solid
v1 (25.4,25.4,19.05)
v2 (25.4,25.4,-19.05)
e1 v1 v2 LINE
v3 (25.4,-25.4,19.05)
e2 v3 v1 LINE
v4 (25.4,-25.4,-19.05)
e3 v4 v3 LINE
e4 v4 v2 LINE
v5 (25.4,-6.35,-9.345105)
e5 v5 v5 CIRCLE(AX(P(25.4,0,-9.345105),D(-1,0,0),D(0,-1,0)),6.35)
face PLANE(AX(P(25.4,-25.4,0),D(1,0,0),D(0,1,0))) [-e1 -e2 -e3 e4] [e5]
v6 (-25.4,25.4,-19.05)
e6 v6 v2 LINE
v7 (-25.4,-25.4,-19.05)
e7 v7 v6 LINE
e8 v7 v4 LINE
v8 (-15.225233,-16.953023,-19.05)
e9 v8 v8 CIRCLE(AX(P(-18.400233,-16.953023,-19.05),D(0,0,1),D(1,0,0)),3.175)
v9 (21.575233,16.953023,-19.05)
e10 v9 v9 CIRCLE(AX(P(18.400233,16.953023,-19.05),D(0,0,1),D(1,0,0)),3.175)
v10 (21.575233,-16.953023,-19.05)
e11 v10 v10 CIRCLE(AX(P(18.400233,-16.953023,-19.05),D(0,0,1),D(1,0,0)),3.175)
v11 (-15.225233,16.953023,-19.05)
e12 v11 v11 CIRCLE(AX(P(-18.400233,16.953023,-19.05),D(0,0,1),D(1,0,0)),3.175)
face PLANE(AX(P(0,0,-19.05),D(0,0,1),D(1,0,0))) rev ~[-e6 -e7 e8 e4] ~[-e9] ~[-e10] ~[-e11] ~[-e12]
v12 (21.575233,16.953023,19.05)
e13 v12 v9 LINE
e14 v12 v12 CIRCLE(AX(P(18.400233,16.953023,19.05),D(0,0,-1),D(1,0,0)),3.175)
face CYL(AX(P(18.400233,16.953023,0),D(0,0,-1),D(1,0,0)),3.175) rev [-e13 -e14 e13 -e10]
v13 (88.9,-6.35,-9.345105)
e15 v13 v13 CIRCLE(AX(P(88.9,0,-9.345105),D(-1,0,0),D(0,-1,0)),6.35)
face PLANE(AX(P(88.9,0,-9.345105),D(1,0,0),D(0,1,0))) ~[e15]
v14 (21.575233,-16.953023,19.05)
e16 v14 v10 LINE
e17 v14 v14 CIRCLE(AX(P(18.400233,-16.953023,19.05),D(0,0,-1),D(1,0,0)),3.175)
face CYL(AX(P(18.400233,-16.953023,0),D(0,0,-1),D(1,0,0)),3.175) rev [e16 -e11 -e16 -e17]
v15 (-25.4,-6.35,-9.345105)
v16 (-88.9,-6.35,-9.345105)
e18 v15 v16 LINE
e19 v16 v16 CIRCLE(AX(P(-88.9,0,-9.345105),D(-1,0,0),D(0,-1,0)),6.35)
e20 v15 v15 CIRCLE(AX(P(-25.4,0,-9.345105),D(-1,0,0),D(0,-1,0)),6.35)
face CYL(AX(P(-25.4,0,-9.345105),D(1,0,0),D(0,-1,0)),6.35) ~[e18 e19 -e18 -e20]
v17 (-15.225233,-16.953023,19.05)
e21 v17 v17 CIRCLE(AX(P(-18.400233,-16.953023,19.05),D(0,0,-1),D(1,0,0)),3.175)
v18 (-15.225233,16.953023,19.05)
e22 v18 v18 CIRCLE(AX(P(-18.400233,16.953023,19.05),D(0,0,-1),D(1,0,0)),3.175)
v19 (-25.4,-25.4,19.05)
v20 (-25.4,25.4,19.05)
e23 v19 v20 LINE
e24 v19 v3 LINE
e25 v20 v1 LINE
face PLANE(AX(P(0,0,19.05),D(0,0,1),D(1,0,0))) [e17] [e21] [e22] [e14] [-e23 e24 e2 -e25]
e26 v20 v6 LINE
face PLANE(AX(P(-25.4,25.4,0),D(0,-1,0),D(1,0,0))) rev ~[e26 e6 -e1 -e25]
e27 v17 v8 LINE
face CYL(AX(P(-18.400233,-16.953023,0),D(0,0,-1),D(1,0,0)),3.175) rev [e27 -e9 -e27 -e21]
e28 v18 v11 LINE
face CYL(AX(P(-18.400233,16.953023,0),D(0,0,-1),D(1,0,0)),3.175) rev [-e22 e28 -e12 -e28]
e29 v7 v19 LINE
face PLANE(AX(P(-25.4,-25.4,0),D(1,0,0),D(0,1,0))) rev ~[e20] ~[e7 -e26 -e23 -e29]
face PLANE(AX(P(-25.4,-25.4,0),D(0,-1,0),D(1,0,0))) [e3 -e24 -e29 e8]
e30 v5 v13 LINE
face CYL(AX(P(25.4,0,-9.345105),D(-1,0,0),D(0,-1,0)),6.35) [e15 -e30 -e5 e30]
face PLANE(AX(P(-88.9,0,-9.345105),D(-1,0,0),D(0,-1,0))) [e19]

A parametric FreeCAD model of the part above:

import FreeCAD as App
import Part
import Sketcher

V = App.Vector
Q = App.Units.Quantity


def add_polygon(sketch, points):
    """Adds a closed chain of lines whose ends are joined by coincident constraints."""
    first, n = sketch.GeometryCount, len(points)
    for a, b in zip(points, points[1:] + points[:1]):
        sketch.addGeometry(Part.LineSegment(App.Vector(*a, 0), App.Vector(*b, 0)), False)
    for i in range(n):
        sketch.addConstraint(Sketcher.Constraint("Coincident", first + i, 2, first + (i + 1) % n, 1))

doc = App.newDocument("Part")
params = doc.addObject("Spreadsheet::Sheet", "Params")
for row, (alias, value) in enumerate([
    ("sketch1_diameter", "0.25 in"),
    ("sketch1_width", "2 in"),
    ("pad1_length", "1.5 in"),
    ("sketch2_diameter", "0.5 in"),
    ("pad2_length", "2.5 in"),
], start=1):
    params.set(f"A{row}", alias)
    params.set(f"B{row}", "=" + value)
    params.setAlias(f"B{row}", alias)

body = doc.addObject("PartDesign::Body", "Body")

sketch1 = body.newObject("Sketcher::SketchObject", "Sketch")
sketch1.AttachmentSupport = (doc.getObject("XY_Plane"), [""])
sketch1.MapMode = "FlatFace"
add_polygon(sketch1, [(-25.4, 25.4), (-25.4, -25.4), (25.4, -25.4), (25.4, 25.4)])
sketch1.addGeometry(Part.Circle(V(-18.4, -17, 0), V(0, 0, 1), 3.2), False)
sketch1.addGeometry(Part.Circle(V(18.4, -17, 0), V(0, 0, 1), 3.2), False)
sketch1.addGeometry(Part.Circle(V(-18.4, 17, 0), V(0, 0, 1), 3.2), False)
sketch1.addGeometry(Part.Circle(V(18.4, 17, 0), V(0, 0, 1), 3.2), False)
sketch1.addConstraint(Sketcher.Constraint("Vertical", 0))
sketch1.addConstraint(Sketcher.Constraint("Horizontal", 1))
sketch1.addConstraint(Sketcher.Constraint("Vertical", 2))
sketch1.addConstraint(Sketcher.Constraint("Horizontal", 3))
sketch1.addConstraint(Sketcher.Constraint("Equal", 4, 5))
sketch1.addConstraint(Sketcher.Constraint("Equal", 5, 6))
sketch1.addConstraint(Sketcher.Constraint("Equal", 6, 7))
sketch1.addConstraint(Sketcher.Constraint("Symmetric", 5, 3, 6, 3, -1, 1))
sketch1.addConstraint(Sketcher.Constraint("Symmetric", 4, 3, 7, 3, -1, 1))
sketch1.addConstraint(Sketcher.Constraint("Symmetric", 0, 2, 2, 2, -1, 1))
sketch1.addConstraint(Sketcher.Constraint("Symmetric", 4, 3, 5, 3, -2))
sketch1.addConstraint(Sketcher.Constraint("Equal", 3, 0))
sketch1.addConstraint(Sketcher.Constraint("Diameter", 4, Q("0.25 in")))
sketch1.addConstraint(Sketcher.Constraint("DistanceX", 1, 1, 1, 2, Q("2 in")))
sketch1.addConstraint(Sketcher.Constraint("DistanceX", 4, 3, -1, 1, Q("18.400233 mm")))
sketch1.addConstraint(Sketcher.Constraint("DistanceY", 4, 3, -1, 1, Q("16.953023 mm")))
sketch1.setExpression("Constraints[16]", "Params.sketch1_diameter")
sketch1.setExpression("Constraints[17]", "Params.sketch1_width")
pad1 = body.newObject("PartDesign::Pad", "Pad")
pad1.Profile = sketch1
pad1.setExpression("Length", "Params.pad1_length")
pad1.Midplane = True

sketch2 = body.newObject("Sketcher::SketchObject", "Sketch001")
sketch2.AttachmentSupport = (doc.getObject("YZ_Plane"), [""])
sketch2.MapMode = "FlatFace"
sketch2.AttachmentOffset = App.Placement(V(0, 0, -1 * 25.4), App.Rotation())
sketch2.addGeometry(Part.Circle(V(0, -9, 0), V(0, 0, 1), 6), False)
sketch2.addConstraint(Sketcher.Constraint("PointOnObject", 0, 3, -2))
sketch2.addConstraint(Sketcher.Constraint("Diameter", 0, Q("0.5 in")))
sketch2.addConstraint(Sketcher.Constraint("DistanceY", 0, 3, -1, 1, Q("9.345105 mm")))
sketch2.setExpression("Constraints[1]", "Params.sketch2_diameter")
pad2 = body.newObject("PartDesign::Pad", "Pad001")
pad2.Profile = sketch2
pad2.setExpression("Length", "Params.pad2_length")
pad2.Reversed = True
body2 = doc.addObject("PartDesign::Body", "Body001")
doc.recompute()

body2.BaseFeature = body
doc.recompute()

mirroring = doc.addObject("Part::Mirroring", "Mirroring")
mirroring.Source = body
mirroring.Base = V(0, 0, 0)
mirroring.Normal = V(1, 0, 0)
body3 = doc.addObject("PartDesign::Body", "Body002")
body3.BaseFeature = mirroring
boolean = body2.newObject("PartDesign::Boolean", "Boolean")
boolean.Type = "Fuse"
boolean.addObjects([body3])
doc.recompute()
mirroring.Visibility = False

doc.recompute()
